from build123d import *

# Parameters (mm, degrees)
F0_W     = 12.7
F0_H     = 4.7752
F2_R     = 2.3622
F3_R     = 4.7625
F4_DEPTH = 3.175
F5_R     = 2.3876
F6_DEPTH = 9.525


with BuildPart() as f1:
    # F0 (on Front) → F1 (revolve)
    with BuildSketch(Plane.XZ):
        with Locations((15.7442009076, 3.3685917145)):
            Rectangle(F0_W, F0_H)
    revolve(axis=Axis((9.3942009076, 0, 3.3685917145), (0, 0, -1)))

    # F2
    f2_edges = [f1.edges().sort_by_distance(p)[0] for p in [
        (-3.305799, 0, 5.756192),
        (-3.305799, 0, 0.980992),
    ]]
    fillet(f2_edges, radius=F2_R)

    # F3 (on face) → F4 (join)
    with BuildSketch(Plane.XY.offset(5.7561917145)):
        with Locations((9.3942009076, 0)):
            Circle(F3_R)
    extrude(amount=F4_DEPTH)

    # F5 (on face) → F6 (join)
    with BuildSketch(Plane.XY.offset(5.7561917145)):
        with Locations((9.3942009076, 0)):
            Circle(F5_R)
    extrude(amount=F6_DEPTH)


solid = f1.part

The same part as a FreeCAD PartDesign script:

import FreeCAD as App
import Part
import Sketcher
Q = App.Units.Quantity


def edges_at(feature, points):
    """Names of the edges that pass closest to the given points."""
    edges = feature.Shape.Edges
    near = lambda p: min(range(len(edges)), key=lambda i: edges[i].distToShape(Part.Vertex(*p))[0])
    return sorted({f"Edge{near(p) + 1}" for p in points})


def add_polygon(sketch, points):
    """Adds a closed chain of lines whose ends are joined by coincident constraints."""
    first, n = sketch.GeometryCount, len(points)
    for a, b in zip(points, points[1:] + points[:1]):
        sketch.addGeometry(Part.LineSegment(App.Vector(*a, 0), App.Vector(*b, 0)), False)
    for i in range(n):
        sketch.addConstraint(Sketcher.Constraint("Coincident", first + i, 2, first + (i + 1) % n, 1))

doc = App.newDocument("Part")
params = doc.addObject("Spreadsheet::Sheet", "Params")
for row, (alias, value) in enumerate([
    ("sketch1_width", "0.5 in"),
    ("sketch1_height", "0.188 in"),
    ("revolution_angle", "360 deg"),
    ("fillet_radius", "0.093 in"),
    ("sketch2_diameter", "0.375 in"),
    ("pad1_length", "0.125 in"),
    ("sketch3_diameter", "0.188 in"),
    ("pad2_length", "0.375 in"),
], start=1):
    params.set(f"A{row}", alias)
    params.set(f"B{row}", "=" + value)
    params.setAlias(f"B{row}", alias)

body = doc.addObject("PartDesign::Body", "Body")

sketch1 = doc.addObject("Sketcher::SketchObject", "Sketch")
body.addObject(sketch1)
sketch1.AttachmentSupport = (doc.XZ_Plane, [""])
sketch1.MapMode = "FlatFace"
add_polygon(sketch1, [(9.394201, 5.756192), (9.394201, 0.980992), (22.094201, 0.980992), (22.094201, 5.756192)])
sketch1.addGeometry(Part.LineSegment(App.Vector(9.394201, 5.756192, 0), App.Vector(9.394201, 0.980992, 0)), True)
sketch1.addConstraint(Sketcher.Constraint("Vertical", 0))
sketch1.addConstraint(Sketcher.Constraint("Horizontal", 1))
sketch1.addConstraint(Sketcher.Constraint("Vertical", 2))
sketch1.addConstraint(Sketcher.Constraint("Horizontal", 3))
sketch1.addConstraint(Sketcher.Constraint("Vertical", 4))
sketch1.addConstraint(Sketcher.Constraint("Coincident", 4, 1, 3, 2))
sketch1.addConstraint(Sketcher.Constraint("Horizontal", 1, 2, 4, 2))
sketch1.addConstraint(Sketcher.Constraint("DistanceX", 1, 1, 1, 2, Q("0.5 in")))
sketch1.addConstraint(Sketcher.Constraint("DistanceY", 0, 2, 0, 1, Q("0.188 in")))
sketch1.addConstraint(Sketcher.Constraint("DistanceX", -1, 1, 0, 2, 9.394201))
sketch1.addConstraint(Sketcher.Constraint("DistanceY", -1, 1, 0, 2, 0.980992))
sketch1.setExpression("Constraints[11]", "Params.sketch1_width")
sketch1.setExpression("Constraints[12]", "Params.sketch1_height")
revolution = doc.addObject("PartDesign::Revolution", "Revolution")
body.addObject(revolution)
revolution.Profile = sketch1
revolution.ReferenceAxis = (sketch1, ["Axis0"])
revolution.setExpression("Angle", "Params.revolution_angle")
doc.recompute()

fillet = doc.addObject("PartDesign::Fillet", "Fillet")
body.addObject(fillet)
fillet.Base = (revolution, edges_at(revolution, [(-3.306, 0, 5.756), (-3.306, 0, 0.981)]))
fillet.setExpression("Radius", "Params.fillet_radius")

sketch2 = doc.addObject("Sketcher::SketchObject", "Sketch001")
body.addObject(sketch2)
sketch2.AttachmentSupport = (doc.XY_Plane, [""])
sketch2.MapMode = "FlatFace"
sketch2.AttachmentOffset = App.Placement(App.Vector(0, 0, 5.756192), App.Rotation())
sketch2.addGeometry(Part.Circle(App.Vector(9.394201, 0, 0), App.Vector(0, 0, 1), 4.7625), False)
sketch2.addConstraint(Sketcher.Constraint("PointOnObject", 0, 3, -1))
sketch2.addConstraint(Sketcher.Constraint("Diameter", 0, Q("0.375 in")))
sketch2.addConstraint(Sketcher.Constraint("DistanceX", -1, 1, 0, 3, 9.394201))
sketch2.setExpression("Constraints[1]", "Params.sketch2_diameter")
pad1 = doc.addObject("PartDesign::Pad", "Pad")
body.addObject(pad1)
pad1.Profile = sketch2
pad1.setExpression("Length", "Params.pad1_length")

sketch3 = doc.addObject("Sketcher::SketchObject", "Sketch002")
body.addObject(sketch3)
sketch3.AttachmentSupport = (doc.XY_Plane, [""])
sketch3.MapMode = "FlatFace"
sketch3.AttachmentOffset = App.Placement(App.Vector(0, 0, 5.756192), App.Rotation())
sketch3.addGeometry(Part.Circle(App.Vector(9.394201, 0, 0), App.Vector(0, 0, 1), 2.3876), False)
sketch3.addConstraint(Sketcher.Constraint("PointOnObject", 0, 3, -1))
sketch3.addConstraint(Sketcher.Constraint("Diameter", 0, Q("0.188 in")))
sketch3.addConstraint(Sketcher.Constraint("DistanceX", -1, 1, 0, 3, 9.394201))
sketch3.setExpression("Constraints[1]", "Params.sketch3_diameter")
pad2 = doc.addObject("PartDesign::Pad", "Pad001")
body.addObject(pad2)
pad2.Profile = sketch3
pad2.setExpression("Length", "Params.pad2_length")

doc.recompute()
